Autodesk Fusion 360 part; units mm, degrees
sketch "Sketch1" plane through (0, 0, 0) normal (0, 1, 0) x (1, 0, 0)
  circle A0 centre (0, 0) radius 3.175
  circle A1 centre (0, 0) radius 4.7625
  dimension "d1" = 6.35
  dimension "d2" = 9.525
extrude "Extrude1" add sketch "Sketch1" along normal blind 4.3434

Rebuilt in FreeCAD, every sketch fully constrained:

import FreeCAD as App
import Part
import Sketcher

V = App.Vector
Q = App.Units.Quantity

doc = App.newDocument("Part")
body = doc.addObject("PartDesign::Body", "Body")

# Sketch on XZ plane
sketch1 = body.newObject("Sketcher::SketchObject", "Sketch")
sketch1.AttachmentSupport = (doc.getObject("XZ_Plane"), [""])
sketch1.MapMode = "FlatFace"
sketch1.addGeometry([
    Part.Circle(V(0, 0, 0), V(0, 0, 1), 4.8),
    Part.Circle(V(0, 0, 0), V(0, 0, 1), 3.2),
], False)
sketch1.addConstraint([
    Sketcher.Constraint("Coincident", 0, 3, -1, 1),
    Sketcher.Constraint("Coincident", 1, 3, -1, 1),
    Sketcher.Constraint("Diameter", 1, Q("0.25 in")),
    Sketcher.Constraint("Diameter", 0, Q("0.375 in")),
])
pad1 = body.newObject("PartDesign::Pad", "Pad")
pad1.Profile = sketch1
pad1.Length = Q("0.171 in")
pad1.Reversed = True

doc.recompute()
